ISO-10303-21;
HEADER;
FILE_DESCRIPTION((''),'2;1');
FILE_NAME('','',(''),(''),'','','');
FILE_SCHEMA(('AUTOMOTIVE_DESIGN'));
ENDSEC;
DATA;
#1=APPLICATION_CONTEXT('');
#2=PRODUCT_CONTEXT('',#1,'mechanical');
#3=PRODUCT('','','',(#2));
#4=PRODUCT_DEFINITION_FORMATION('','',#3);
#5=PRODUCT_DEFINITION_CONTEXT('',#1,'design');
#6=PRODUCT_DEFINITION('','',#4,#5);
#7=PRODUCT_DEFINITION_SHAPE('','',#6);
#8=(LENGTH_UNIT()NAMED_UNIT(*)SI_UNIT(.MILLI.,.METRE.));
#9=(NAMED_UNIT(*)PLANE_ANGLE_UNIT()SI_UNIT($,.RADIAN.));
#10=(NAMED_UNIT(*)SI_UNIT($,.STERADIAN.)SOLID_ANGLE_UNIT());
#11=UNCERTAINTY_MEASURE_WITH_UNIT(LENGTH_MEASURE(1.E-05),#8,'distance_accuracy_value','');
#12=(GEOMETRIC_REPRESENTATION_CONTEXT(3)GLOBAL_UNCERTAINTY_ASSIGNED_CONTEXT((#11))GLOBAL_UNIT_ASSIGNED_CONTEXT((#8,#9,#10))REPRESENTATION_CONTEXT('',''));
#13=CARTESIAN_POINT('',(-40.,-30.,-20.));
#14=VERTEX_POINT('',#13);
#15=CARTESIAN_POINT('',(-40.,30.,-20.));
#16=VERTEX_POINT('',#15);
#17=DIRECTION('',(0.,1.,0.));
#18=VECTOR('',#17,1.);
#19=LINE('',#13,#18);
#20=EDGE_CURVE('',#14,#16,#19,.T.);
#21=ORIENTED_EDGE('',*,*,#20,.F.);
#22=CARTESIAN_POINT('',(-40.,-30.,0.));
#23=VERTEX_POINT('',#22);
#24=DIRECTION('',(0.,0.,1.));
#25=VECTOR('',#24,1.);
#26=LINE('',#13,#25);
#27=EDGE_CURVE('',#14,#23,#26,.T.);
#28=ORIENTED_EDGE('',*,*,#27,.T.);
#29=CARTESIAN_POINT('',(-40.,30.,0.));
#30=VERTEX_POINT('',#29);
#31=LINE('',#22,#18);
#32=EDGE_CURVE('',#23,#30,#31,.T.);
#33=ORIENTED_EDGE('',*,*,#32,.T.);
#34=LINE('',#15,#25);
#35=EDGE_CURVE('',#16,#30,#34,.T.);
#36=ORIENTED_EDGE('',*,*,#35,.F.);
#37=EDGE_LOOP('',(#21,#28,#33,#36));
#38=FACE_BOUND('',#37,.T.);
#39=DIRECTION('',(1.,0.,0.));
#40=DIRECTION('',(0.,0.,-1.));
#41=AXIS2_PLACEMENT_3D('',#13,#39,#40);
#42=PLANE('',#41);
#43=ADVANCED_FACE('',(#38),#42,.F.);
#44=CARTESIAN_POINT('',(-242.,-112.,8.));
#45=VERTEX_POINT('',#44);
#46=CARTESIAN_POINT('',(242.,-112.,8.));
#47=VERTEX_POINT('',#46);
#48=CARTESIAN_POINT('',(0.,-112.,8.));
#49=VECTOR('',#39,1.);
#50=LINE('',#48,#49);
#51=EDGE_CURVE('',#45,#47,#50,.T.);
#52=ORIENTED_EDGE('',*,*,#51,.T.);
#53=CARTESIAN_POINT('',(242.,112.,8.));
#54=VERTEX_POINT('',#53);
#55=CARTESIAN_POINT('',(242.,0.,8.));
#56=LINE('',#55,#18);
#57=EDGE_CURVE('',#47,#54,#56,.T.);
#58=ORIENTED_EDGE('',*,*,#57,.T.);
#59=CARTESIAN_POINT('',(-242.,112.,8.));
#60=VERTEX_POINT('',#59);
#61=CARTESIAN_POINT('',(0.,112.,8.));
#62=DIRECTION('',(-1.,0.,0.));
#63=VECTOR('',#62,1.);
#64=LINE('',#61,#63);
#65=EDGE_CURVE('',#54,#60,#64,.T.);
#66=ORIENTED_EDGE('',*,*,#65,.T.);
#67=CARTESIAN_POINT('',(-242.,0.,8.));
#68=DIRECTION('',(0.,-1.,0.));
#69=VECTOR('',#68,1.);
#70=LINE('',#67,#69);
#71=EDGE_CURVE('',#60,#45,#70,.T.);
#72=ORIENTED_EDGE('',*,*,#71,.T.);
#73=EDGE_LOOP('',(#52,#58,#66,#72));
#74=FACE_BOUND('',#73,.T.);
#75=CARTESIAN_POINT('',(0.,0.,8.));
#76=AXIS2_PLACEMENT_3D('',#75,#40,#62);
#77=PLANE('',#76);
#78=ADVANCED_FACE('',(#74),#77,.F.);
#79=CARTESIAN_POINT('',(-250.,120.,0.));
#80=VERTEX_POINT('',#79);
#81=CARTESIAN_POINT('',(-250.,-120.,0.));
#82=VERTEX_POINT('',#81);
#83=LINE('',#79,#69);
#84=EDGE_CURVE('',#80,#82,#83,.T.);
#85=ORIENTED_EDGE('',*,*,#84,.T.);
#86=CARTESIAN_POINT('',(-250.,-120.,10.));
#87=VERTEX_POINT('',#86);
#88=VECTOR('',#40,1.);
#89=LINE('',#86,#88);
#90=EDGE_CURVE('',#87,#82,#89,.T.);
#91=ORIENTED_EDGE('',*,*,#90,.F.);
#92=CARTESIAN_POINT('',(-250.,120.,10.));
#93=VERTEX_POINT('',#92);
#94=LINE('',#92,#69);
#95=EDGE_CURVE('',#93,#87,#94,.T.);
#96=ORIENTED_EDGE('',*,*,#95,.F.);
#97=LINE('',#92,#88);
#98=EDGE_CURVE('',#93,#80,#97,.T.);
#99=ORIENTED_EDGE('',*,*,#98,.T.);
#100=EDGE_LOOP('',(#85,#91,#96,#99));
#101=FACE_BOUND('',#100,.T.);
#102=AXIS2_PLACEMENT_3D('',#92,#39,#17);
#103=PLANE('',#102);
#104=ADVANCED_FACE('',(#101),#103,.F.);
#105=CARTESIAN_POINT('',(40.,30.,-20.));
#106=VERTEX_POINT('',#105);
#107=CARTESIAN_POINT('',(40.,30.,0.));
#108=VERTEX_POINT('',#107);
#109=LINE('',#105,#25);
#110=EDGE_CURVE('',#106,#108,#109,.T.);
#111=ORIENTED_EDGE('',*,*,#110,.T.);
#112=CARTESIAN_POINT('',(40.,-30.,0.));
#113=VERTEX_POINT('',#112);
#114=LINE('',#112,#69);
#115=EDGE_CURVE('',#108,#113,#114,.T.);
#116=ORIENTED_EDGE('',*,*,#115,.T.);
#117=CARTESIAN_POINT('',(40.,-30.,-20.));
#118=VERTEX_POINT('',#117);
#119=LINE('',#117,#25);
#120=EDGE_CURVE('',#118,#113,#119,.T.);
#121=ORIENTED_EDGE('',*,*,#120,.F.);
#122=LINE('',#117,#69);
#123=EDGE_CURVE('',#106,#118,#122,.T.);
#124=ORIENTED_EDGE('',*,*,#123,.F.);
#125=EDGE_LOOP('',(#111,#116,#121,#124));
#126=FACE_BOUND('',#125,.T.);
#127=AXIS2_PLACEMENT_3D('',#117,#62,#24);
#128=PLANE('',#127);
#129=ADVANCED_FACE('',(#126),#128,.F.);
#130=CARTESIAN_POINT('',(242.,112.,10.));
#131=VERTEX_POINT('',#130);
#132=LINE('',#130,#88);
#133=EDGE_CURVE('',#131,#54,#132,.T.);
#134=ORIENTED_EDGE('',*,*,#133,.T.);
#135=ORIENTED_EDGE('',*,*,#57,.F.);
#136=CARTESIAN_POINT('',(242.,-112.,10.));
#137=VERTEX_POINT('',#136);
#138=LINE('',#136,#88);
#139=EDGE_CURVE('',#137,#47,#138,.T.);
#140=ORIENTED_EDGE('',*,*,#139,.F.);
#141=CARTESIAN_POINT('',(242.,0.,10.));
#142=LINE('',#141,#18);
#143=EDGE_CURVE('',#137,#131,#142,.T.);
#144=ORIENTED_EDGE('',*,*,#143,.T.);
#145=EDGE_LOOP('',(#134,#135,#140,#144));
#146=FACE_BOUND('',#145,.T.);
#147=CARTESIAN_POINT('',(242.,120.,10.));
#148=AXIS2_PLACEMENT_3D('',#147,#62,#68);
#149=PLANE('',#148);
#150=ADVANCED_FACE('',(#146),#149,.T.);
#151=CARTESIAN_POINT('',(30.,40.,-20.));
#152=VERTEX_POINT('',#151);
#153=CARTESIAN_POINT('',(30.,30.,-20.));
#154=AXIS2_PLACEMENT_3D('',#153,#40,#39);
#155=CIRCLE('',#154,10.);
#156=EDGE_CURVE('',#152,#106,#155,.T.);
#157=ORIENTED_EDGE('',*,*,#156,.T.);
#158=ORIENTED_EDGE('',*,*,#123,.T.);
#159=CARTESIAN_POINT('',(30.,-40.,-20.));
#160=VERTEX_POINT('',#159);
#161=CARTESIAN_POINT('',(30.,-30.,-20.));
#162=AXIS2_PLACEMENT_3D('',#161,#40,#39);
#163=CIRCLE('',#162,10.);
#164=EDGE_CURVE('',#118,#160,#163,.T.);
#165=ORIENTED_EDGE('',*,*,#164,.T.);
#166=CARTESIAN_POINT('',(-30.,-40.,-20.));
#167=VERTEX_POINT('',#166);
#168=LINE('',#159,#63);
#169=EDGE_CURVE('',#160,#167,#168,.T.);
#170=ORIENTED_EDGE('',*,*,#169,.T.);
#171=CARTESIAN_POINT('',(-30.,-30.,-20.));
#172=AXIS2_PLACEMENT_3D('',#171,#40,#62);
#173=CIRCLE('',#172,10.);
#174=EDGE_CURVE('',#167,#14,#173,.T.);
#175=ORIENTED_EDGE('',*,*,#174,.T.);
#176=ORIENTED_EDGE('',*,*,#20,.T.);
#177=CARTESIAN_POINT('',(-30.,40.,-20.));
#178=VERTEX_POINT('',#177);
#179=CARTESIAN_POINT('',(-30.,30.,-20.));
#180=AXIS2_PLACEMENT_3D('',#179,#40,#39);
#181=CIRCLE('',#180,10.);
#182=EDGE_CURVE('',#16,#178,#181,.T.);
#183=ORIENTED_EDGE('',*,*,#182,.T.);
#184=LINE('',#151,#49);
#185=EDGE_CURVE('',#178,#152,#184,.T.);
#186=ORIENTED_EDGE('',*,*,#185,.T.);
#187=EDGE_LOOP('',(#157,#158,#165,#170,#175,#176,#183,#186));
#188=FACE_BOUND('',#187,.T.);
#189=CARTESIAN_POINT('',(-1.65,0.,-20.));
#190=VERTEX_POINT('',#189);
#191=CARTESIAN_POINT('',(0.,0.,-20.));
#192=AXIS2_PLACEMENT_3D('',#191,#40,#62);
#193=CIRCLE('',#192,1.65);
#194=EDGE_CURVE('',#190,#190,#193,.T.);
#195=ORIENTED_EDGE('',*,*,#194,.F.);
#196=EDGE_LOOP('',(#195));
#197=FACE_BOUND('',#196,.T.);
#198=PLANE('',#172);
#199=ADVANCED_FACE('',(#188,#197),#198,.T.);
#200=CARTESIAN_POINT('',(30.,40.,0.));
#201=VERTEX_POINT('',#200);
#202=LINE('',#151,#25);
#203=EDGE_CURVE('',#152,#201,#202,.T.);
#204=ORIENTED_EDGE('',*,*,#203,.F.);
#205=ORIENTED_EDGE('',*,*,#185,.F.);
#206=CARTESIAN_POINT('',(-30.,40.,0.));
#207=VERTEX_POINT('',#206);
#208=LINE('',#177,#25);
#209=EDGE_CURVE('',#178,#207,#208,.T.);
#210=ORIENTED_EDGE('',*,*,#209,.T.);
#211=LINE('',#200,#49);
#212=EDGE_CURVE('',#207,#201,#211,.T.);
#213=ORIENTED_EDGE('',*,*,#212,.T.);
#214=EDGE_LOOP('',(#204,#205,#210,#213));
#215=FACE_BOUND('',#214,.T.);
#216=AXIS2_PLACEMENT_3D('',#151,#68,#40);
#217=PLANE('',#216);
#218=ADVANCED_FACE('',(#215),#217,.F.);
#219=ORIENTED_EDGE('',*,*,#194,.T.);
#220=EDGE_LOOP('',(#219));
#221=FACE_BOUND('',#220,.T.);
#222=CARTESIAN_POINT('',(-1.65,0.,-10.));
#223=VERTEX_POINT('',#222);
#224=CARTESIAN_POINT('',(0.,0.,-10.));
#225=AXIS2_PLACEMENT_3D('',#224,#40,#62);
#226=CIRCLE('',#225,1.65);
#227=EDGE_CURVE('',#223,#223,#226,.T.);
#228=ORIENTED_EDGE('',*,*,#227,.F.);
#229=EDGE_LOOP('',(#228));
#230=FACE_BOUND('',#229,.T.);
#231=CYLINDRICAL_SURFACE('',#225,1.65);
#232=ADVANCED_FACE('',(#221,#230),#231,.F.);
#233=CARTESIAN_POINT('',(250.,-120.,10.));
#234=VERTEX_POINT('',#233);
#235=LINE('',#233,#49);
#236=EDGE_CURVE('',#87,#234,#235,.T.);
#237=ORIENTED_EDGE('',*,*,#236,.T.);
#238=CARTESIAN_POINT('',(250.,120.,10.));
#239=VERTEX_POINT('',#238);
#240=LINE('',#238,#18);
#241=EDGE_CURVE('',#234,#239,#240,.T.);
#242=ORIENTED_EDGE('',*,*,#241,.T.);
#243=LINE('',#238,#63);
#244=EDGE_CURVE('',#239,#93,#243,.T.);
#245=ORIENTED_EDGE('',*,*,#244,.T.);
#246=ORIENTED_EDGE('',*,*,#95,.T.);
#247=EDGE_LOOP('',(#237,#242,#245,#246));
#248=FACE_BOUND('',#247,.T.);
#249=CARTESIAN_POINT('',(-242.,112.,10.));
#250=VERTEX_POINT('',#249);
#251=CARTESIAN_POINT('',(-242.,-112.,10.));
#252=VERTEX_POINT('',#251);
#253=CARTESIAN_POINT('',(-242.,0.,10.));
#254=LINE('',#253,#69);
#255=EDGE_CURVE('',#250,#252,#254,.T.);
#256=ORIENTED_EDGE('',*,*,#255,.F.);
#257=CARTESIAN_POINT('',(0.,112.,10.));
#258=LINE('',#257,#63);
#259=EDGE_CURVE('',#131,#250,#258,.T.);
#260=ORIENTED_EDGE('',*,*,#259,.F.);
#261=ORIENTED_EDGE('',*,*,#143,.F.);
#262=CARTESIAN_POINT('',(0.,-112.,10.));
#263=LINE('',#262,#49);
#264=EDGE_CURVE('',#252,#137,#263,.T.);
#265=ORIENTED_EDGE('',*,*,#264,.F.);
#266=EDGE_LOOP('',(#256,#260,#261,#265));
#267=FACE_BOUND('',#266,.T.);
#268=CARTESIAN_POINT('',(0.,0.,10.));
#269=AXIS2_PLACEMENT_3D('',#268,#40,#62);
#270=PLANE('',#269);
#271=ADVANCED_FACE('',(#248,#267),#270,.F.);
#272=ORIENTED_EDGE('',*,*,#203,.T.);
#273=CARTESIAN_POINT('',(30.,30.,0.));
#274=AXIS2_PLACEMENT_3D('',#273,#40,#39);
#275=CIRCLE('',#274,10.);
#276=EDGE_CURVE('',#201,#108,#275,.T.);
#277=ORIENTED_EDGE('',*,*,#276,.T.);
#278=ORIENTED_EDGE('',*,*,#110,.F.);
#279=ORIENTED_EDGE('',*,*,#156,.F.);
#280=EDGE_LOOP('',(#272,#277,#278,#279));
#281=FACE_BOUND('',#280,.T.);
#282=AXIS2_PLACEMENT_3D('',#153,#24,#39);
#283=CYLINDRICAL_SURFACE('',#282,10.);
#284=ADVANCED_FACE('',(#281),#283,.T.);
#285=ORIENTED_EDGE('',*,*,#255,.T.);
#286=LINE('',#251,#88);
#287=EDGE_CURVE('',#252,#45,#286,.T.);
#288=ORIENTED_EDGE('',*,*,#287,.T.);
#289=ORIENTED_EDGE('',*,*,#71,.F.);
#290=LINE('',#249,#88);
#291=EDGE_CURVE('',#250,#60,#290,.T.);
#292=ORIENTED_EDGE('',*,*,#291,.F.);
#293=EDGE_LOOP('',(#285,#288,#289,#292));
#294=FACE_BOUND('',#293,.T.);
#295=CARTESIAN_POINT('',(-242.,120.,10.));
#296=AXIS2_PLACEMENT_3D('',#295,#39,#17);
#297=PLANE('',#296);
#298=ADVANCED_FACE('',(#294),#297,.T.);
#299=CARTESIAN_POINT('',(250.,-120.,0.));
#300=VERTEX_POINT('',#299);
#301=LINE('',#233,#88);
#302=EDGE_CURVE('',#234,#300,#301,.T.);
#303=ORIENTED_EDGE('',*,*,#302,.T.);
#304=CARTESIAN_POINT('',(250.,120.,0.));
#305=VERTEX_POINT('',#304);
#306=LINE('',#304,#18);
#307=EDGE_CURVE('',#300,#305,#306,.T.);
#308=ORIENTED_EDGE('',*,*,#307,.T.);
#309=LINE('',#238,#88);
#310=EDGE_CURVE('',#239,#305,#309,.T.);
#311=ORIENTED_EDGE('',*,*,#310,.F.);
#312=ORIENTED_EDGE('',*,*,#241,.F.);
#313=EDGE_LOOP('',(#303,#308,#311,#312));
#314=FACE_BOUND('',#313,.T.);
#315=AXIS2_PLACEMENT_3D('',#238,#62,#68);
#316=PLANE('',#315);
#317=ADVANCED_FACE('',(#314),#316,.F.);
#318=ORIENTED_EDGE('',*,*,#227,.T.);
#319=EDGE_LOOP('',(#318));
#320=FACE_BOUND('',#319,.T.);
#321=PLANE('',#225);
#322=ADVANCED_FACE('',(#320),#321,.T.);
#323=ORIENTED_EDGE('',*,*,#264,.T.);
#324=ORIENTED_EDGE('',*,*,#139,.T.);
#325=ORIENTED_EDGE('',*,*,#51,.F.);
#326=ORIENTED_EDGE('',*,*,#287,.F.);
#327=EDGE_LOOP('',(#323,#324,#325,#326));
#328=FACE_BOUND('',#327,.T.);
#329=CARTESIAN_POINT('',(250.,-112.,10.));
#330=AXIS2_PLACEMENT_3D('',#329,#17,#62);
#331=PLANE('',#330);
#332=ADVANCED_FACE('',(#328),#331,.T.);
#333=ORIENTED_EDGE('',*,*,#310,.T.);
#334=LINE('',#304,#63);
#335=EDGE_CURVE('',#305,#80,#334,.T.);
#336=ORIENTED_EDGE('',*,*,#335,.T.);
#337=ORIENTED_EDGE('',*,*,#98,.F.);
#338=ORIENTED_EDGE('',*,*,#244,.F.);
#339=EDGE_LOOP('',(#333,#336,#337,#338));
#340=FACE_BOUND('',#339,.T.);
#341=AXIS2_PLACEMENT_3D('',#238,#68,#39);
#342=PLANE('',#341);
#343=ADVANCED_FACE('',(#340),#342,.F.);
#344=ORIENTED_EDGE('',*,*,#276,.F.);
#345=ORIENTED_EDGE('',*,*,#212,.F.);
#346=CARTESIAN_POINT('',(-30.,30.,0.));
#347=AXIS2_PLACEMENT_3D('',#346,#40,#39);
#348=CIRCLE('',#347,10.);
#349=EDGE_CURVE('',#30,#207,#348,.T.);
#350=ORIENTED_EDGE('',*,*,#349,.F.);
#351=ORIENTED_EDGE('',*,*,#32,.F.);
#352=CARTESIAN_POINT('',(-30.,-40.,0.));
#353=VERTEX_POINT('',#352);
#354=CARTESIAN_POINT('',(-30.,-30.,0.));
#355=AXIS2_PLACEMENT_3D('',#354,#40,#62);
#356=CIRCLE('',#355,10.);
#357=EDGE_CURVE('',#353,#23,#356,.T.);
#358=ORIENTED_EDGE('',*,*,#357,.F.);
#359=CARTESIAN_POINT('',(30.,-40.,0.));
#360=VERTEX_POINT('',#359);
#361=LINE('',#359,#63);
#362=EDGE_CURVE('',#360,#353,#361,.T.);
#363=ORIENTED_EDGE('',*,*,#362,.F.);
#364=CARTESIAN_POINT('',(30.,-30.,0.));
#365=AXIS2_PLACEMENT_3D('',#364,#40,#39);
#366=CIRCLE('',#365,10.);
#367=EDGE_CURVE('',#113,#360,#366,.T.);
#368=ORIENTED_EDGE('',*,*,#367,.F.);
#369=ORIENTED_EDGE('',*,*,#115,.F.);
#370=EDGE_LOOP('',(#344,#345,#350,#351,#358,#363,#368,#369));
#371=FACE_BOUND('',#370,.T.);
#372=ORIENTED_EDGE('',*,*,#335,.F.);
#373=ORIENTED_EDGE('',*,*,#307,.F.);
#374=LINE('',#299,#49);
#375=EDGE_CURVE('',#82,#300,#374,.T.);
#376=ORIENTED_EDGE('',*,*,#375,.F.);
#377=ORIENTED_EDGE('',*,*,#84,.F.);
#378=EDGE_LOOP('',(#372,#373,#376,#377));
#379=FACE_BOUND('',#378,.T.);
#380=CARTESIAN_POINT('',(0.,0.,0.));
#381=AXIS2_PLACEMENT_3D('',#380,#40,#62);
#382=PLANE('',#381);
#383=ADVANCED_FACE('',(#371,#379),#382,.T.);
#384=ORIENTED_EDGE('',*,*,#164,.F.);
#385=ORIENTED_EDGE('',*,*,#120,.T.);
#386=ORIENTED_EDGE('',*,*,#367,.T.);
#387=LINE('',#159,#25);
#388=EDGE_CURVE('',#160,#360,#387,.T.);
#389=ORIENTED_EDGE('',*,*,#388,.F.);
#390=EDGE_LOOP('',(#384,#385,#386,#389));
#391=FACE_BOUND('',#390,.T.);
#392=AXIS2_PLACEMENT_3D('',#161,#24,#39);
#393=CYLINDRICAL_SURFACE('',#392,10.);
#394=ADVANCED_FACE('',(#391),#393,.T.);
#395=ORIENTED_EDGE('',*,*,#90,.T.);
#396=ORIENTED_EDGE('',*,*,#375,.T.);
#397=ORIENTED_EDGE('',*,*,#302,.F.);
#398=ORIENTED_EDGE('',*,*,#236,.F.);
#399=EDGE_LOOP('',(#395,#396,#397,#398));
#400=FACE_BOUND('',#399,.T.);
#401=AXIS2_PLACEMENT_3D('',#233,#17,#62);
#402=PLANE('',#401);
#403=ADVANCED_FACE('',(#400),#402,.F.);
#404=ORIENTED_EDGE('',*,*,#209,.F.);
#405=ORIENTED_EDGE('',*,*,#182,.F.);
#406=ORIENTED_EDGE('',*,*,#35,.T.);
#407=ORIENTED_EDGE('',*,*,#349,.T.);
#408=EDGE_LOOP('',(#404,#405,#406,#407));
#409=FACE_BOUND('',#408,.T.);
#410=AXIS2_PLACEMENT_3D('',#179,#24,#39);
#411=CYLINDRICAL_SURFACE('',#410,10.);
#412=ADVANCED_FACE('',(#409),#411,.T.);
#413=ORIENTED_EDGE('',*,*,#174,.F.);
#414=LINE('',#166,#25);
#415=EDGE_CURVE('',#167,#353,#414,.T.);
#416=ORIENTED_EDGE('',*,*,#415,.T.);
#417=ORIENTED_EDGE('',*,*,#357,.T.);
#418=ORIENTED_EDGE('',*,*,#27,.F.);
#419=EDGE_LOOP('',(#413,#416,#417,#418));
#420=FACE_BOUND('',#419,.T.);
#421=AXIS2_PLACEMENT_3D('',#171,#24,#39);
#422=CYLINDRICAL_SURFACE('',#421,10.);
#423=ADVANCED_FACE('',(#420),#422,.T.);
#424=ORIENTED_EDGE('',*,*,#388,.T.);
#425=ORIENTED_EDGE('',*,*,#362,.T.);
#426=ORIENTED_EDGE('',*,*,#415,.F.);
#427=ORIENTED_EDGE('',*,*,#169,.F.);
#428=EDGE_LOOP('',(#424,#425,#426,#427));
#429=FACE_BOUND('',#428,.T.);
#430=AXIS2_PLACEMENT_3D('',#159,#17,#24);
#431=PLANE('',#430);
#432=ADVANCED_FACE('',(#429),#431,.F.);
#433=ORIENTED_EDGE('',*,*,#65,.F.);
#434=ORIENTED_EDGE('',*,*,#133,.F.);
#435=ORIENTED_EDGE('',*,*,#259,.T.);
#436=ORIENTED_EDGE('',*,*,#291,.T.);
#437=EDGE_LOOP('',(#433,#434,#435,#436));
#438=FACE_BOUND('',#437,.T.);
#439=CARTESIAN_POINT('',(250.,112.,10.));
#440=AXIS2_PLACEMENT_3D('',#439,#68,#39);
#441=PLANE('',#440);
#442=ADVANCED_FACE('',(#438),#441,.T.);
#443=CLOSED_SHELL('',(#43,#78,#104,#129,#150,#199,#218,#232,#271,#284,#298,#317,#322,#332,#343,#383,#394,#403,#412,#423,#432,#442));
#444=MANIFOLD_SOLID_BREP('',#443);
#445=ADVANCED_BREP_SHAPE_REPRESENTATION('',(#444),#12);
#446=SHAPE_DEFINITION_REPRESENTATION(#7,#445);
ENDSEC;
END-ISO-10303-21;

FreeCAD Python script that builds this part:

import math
import FreeCAD as App
import Part
import Sketcher

V = App.Vector


def faces_at(feature, points):
    """Names of the faces that lie closest to the given points."""
    faces = feature.Shape.Faces
    near = lambda p: min(range(len(faces)), key=lambda i: faces[i].distToShape(Part.Vertex(*p))[0])
    return sorted({f"Face{near(p) + 1}" for p in points})

doc = App.newDocument("Part")
params = doc.addObject("Spreadsheet::Sheet", "Params")
for row, (alias, value) in enumerate([
    ("sketch1_width", "500 mm"),
    ("sketch1_height", "240 mm"),
    ("pad1_length", "10 mm"),
    ("thickness_wall", "8 mm"),
    ("sketch2_radius", "10 mm"),
    ("sketch2_width", "60 mm"),
    ("pad2_length", "20 mm"),
    ("sketch3_diameter", "3.3 mm"),
    ("pocket1_length", "10 mm"),
], start=1):
    params.set(f"A{row}", alias)
    params.set(f"B{row}", "=" + value)
    params.setAlias(f"B{row}", alias)

body = doc.addObject("PartDesign::Body", "Body")

# Sketch on XY plane
sketch1 = doc.addObject("Sketcher::SketchObject", "Sketch")
body.addObject(sketch1)
sketch1.AttachmentSupport = (doc.XY_Plane, [""])
sketch1.MapMode = "FlatFace"
sketch1.addGeometry([
    Part.LineSegment(V(-250, 120, 0), V(-250, -120, 0)),
    Part.LineSegment(V(-250, -120, 0), V(250, -120, 0)),
    Part.LineSegment(V(250, -120, 0), V(250, 120, 0)),
    Part.LineSegment(V(250, 120, 0), V(-250, 120, 0)),
], False)
sketch1.addConstraint([
    Sketcher.Constraint("Coincident", 0, 2, 1, 1),
    Sketcher.Constraint("Coincident", 1, 2, 2, 1),
    Sketcher.Constraint("Coincident", 2, 2, 3, 1),
    Sketcher.Constraint("Coincident", 3, 2, 0, 1),
    Sketcher.Constraint("Vertical", 0),
    Sketcher.Constraint("Horizontal", 1),
    Sketcher.Constraint("Vertical", 2),
    Sketcher.Constraint("Horizontal", 3),
    Sketcher.Constraint("Symmetric", 0, 2, 2, 2, -1, 1),
    Sketcher.Constraint("DistanceX", 1, 1, 1, 2, 500.0),
    Sketcher.Constraint("DistanceY", 0, 2, 0, 1, 240.0),
])
sketch1.setExpression("Constraints[9]", "Params.sketch1_width")
sketch1.setExpression("Constraints[10]", "Params.sketch1_height")
pad1 = doc.addObject("PartDesign::Pad", "Pad")
body.addObject(pad1)
pad1.Profile = sketch1
pad1.setExpression("Length", "Params.pad1_length")
doc.recompute()

thickness = doc.addObject("PartDesign::Thickness", "Thickness")
body.addObject(thickness)
thickness.Base = (pad1, faces_at(pad1, [(0, 0, 10)]))
thickness.setExpression("Value", "Params.thickness_wall")
thickness.Reversed = True
thickness.Join = "Intersection"

# Sketch on XY plane
sketch2 = doc.addObject("Sketcher::SketchObject", "Sketch001")
body.addObject(sketch2)
sketch2.AttachmentSupport = (doc.XY_Plane, [""])
sketch2.MapMode = "FlatFace"
sketch2.addGeometry([
    Part.LineSegment(V(30, -40, 0), V(-30, -40, 0)),  # 0
    Part.ArcOfCircle(Part.Circle(V(-30, -30, 0), V(0, 0, 1), 10), math.radians(180), math.radians(270)),  # 1
    Part.LineSegment(V(-40, -30, 0), V(-40, 30, 0)),  # 2
    Part.ArcOfCircle(Part.Circle(V(-30, 30, 0), V(0, 0, 1), 10), math.radians(90), math.radians(180)),  # 3
    Part.LineSegment(V(-30, 40, 0), V(30, 40, 0)),  # 4
    Part.ArcOfCircle(Part.Circle(V(30, 30, 0), V(0, 0, 1), 10), math.radians(0), math.radians(90)),  # 5
    Part.LineSegment(V(40, 30, 0), V(40, -30, 0)),  # 6
    Part.ArcOfCircle(Part.Circle(V(30, -30, 0), V(0, 0, 1), 10), math.radians(-90), math.radians(0)),  # 7
], False)
sketch2.addConstraint([
    Sketcher.Constraint("Tangent", 0, 2, 1, 2),
    Sketcher.Constraint("Tangent", 1, 1, 2, 1),
    Sketcher.Constraint("Tangent", 2, 2, 3, 2),
    Sketcher.Constraint("Tangent", 3, 1, 4, 1),
    Sketcher.Constraint("Tangent", 4, 2, 5, 2),
    Sketcher.Constraint("Tangent", 5, 1, 6, 1),
    Sketcher.Constraint("Tangent", 6, 2, 7, 2),
    Sketcher.Constraint("Tangent", 7, 1, 0, 1),
    Sketcher.Constraint("Horizontal", 0),
    Sketcher.Constraint("Vertical", 2),
    Sketcher.Constraint("Horizontal", 4),
    Sketcher.Constraint("Vertical", 6),
    Sketcher.Constraint("Equal", 1, 3),
    Sketcher.Constraint("Equal", 3, 5),
    Sketcher.Constraint("Equal", 5, 7),
    Sketcher.Constraint("Symmetric", 1, 3, 5, 3, -1, 1),
    Sketcher.Constraint("Equal", 4, 2),
    Sketcher.Constraint("Radius", 1, 10.0),
    Sketcher.Constraint("DistanceX", 0, 2, 0, 1, 60.0),
])
sketch2.setExpression("Constraints[17]", "Params.sketch2_radius")
sketch2.setExpression("Constraints[18]", "Params.sketch2_width")
pad2 = doc.addObject("PartDesign::Pad", "Pad001")
body.addObject(pad2)
pad2.Profile = sketch2
pad2.setExpression("Length", "Params.pad2_length")
pad2.Reversed = True

# Sketch on XY plane
sketch3 = doc.addObject("Sketcher::SketchObject", "Sketch002")
body.addObject(sketch3)
sketch3.AttachmentSupport = (doc.XY_Plane, [""])
sketch3.MapMode = "FlatFace"
sketch3.AttachmentOffset = App.Placement(V(0, 0, -20), App.Rotation())
sketch3.addGeometry(Part.Circle(V(0, 0, 0), V(0, 0, 1), 1.6), False)
sketch3.addConstraint([
    Sketcher.Constraint("Coincident", 0, 3, -1, 1),
    Sketcher.Constraint("Diameter", 0, 3.3),
])
sketch3.setExpression("Constraints[1]", "Params.sketch3_diameter")
pocket1 = doc.addObject("PartDesign::Pocket", "Pocket")
body.addObject(pocket1)
pocket1.Profile = sketch3
pocket1.setExpression("Length", "Params.pocket1_length")
pocket1.Reversed = True

doc.recompute()
